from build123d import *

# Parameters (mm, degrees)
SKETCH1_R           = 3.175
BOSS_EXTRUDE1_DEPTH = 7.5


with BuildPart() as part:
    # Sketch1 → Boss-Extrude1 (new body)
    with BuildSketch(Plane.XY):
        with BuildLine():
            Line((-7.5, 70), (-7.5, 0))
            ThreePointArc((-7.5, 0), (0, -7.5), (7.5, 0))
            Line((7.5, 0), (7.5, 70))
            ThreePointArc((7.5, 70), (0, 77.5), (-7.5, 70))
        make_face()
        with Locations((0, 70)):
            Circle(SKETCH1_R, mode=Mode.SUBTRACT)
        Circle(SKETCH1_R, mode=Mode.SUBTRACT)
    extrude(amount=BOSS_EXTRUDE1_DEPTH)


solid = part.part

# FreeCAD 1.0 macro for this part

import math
import FreeCAD as App
import Part
import Sketcher

V = App.Vector
Q = App.Units.Quantity

doc = App.newDocument("Part")
body = doc.addObject("PartDesign::Body", "Body")

sketch1 = body.newObject("Sketcher::SketchObject", "Sketch")
sketch1.AttachmentSupport = (doc.getObject("XY_Plane"), [""])
sketch1.MapMode = "FlatFace"
sketch1.addGeometry(Part.LineSegment(V(-7.5, 70, 0), V(-7.5, 0, 0)), False)
sketch1.addGeometry(Part.ArcOfCircle(Part.Circle(V(0, 0, 0), V(0, 0, 1), 7.5), math.radians(180), math.radians(360)), False)
sketch1.addGeometry(Part.LineSegment(V(7.5, 0, 0), V(7.5, 70, 0)), False)
sketch1.addGeometry(Part.ArcOfCircle(Part.Circle(V(0, 70, 0), V(0, 0, 1), 7.5), math.radians(0), math.radians(180)), False)
sketch1.addGeometry(Part.Circle(V(0, 0, 0), V(0, 0, 1), 3.2), False)
sketch1.addGeometry(Part.Circle(V(0, 70, 0), V(0, 0, 1), 3.2), False)
sketch1.addConstraint(Sketcher.Constraint("Tangent", 0, 2, 1, 1))
sketch1.addConstraint(Sketcher.Constraint("Tangent", 1, 2, 2, 1))
sketch1.addConstraint(Sketcher.Constraint("Tangent", 2, 2, 3, 1))
sketch1.addConstraint(Sketcher.Constraint("Tangent", 3, 2, 0, 1))
sketch1.addConstraint(Sketcher.Constraint("Vertical", 0))
sketch1.addConstraint(Sketcher.Constraint("Vertical", 2))
sketch1.addConstraint(Sketcher.Constraint("Coincident", 1, 3, -1, 1))
sketch1.addConstraint(Sketcher.Constraint("Coincident", 4, 3, -1, 1))
sketch1.addConstraint(Sketcher.Constraint("Coincident", 5, 3, 3, 3))
sketch1.addConstraint(Sketcher.Constraint("Equal", 4, 5))
sketch1.addConstraint(Sketcher.Constraint("Radius", 1, Q("7.5 mm")))
sketch1.addConstraint(Sketcher.Constraint("Diameter", 4, Q("6.35 mm")))
sketch1.addConstraint(Sketcher.Constraint("DistanceY", 0, 2, 0, 1, Q("70 mm")))
pad1 = body.newObject("PartDesign::Pad", "Pad")
pad1.Profile = sketch1
pad1.Length = 7.5

doc.recompute()
